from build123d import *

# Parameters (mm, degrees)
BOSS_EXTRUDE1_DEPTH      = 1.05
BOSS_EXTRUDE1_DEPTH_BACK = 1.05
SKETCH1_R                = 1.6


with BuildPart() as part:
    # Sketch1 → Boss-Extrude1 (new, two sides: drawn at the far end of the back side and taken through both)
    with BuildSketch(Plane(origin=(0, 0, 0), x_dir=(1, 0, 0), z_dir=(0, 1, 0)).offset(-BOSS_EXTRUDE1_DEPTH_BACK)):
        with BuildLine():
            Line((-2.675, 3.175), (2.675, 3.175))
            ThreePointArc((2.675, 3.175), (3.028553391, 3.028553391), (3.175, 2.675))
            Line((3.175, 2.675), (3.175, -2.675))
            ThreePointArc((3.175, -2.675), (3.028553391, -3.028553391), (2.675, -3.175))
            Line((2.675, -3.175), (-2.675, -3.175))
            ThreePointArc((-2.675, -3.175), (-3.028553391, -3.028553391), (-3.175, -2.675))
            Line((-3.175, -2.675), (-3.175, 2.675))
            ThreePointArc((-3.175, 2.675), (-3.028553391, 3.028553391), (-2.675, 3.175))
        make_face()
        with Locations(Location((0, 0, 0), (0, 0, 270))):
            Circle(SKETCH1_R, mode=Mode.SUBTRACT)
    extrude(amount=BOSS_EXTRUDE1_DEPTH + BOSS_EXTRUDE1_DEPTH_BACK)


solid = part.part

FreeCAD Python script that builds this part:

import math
import FreeCAD as App
import Part
import Sketcher
from FreeCAD import Vector

doc = App.newDocument("Part")
body = doc.addObject("PartDesign::Body", "Body")

# Sketch on XZ plane
sketch1 = body.newObject("Sketcher::SketchObject", "Sketch")
sketch1.AttachmentSupport = (doc.getObject("XZ_Plane"), [""])
sketch1.MapMode = "FlatFace"
sketch1.addGeometry([
    Part.LineSegment(Vector(2.67, -3.17, 0), Vector(-2.67, -3.17, 0)),  # 0
    Part.ArcOfCircle(Part.Circle(Vector(-2.68, -2.68, 0), Vector(0, 0, 1), 0.5), math.radians(180), math.radians(270)),  # 1
    Part.LineSegment(Vector(-3.17, -2.67, 0), Vector(-3.17, 2.67, 0)),  # 2
    Part.ArcOfCircle(Part.Circle(Vector(-2.68, 2.68, 0), Vector(0, 0, 1), 0.5), math.radians(90), math.radians(180)),  # 3
    Part.LineSegment(Vector(-2.67, 3.17, 0), Vector(2.67, 3.17, 0)),  # 4
    Part.ArcOfCircle(Part.Circle(Vector(2.68, 2.68, 0), Vector(0, 0, 1), 0.5), math.radians(0), math.radians(90)),  # 5
    Part.LineSegment(Vector(3.17, 2.67, 0), Vector(3.17, -2.67, 0)),  # 6
    Part.ArcOfCircle(Part.Circle(Vector(2.68, -2.68, 0), Vector(0, 0, 1), 0.5), math.radians(-90), math.radians(0)),  # 7
    Part.Circle(Vector(0, 0, 0), Vector(0, 0, 1), 1.6),  # 8
], False)
sketch1.addConstraint([
    Sketcher.Constraint("Tangent", 0, 2, 1, 2),
    Sketcher.Constraint("Tangent", 1, 1, 2, 1),
    Sketcher.Constraint("Tangent", 2, 2, 3, 2),
    Sketcher.Constraint("Tangent", 3, 1, 4, 1),
    Sketcher.Constraint("Tangent", 4, 2, 5, 2),
    Sketcher.Constraint("Tangent", 5, 1, 6, 1),
    Sketcher.Constraint("Tangent", 6, 2, 7, 2),
    Sketcher.Constraint("Tangent", 7, 1, 0, 1),
    Sketcher.Constraint("Horizontal", 0),
    Sketcher.Constraint("Vertical", 2),
    Sketcher.Constraint("Horizontal", 4),
    Sketcher.Constraint("Vertical", 6),
    Sketcher.Constraint("Coincident", 8, 3, -1, 1),
    Sketcher.Constraint("Equal", 1, 3),
    Sketcher.Constraint("Equal", 3, 5),
    Sketcher.Constraint("Equal", 5, 7),
    Sketcher.Constraint("Symmetric", 1, 3, 5, 3, -1, 1),
    Sketcher.Constraint("Equal", 4, 2),
    Sketcher.Constraint("Diameter", 8, 3.2),
    Sketcher.Constraint("Radius", 1, 0.5),
    Sketcher.Constraint("DistanceX", 0, 2, 0, 1, 5.35),
])
pad1 = body.newObject("PartDesign::Pad", "Pad")
pad1.Profile = sketch1
pad1.Type = "TwoLengths"
pad1.Length = 1.05
pad1.Length2 = 1.05
pad1.Reversed = True

doc.recompute()
